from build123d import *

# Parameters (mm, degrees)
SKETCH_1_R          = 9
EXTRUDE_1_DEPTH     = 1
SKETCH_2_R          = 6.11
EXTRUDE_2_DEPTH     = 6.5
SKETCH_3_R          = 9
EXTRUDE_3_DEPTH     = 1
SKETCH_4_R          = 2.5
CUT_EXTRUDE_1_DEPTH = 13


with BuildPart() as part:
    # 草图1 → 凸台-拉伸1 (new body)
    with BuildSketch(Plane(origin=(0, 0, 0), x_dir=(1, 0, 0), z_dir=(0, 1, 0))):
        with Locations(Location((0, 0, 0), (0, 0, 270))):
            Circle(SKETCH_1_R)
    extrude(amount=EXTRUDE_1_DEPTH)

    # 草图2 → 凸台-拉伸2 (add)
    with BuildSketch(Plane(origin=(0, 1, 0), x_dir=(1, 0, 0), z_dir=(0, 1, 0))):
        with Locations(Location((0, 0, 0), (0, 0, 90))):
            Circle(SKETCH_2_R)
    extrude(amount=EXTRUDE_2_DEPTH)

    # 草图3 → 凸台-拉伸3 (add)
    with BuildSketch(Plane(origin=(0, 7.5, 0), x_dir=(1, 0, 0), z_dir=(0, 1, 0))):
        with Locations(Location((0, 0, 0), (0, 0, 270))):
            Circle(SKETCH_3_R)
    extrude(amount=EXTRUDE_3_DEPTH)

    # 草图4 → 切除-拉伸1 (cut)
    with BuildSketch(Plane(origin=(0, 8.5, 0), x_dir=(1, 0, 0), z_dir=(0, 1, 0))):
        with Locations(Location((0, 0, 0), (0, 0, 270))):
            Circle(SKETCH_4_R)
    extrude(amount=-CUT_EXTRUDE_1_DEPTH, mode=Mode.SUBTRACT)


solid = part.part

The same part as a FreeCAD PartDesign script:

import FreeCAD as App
import Part
import Sketcher

V = App.Vector

doc = App.newDocument("Part")
body = doc.addObject("PartDesign::Body", "Body")

sketch1 = body.newObject("Sketcher::SketchObject", "Sketch")
sketch1.AttachmentSupport = (doc.getObject("XZ_Plane"), [""])
sketch1.MapMode = "FlatFace"
sketch1.addGeometry(Part.Circle(V(0, 0, 0), V(0, 0, 1), 9), False)
sketch1.addConstraint([
    Sketcher.Constraint("Coincident", 0, 3, -1, 1),
    Sketcher.Constraint("Diameter", 0, 18.0),
])
pad1 = body.newObject("PartDesign::Pad", "Pad")
pad1.Profile = sketch1
pad1.Length = 1
pad1.Reversed = True

sketch2 = body.newObject("Sketcher::SketchObject", "Sketch001")
sketch2.AttachmentSupport = (doc.getObject("XZ_Plane"), [""])
sketch2.MapMode = "FlatFace"
sketch2.AttachmentOffset = App.Placement(V(0, 0, -1), App.Rotation())
sketch2.addGeometry(Part.Circle(V(0, 0, 0), V(0, 0, 1), 6), False)
sketch2.addConstraint([
    Sketcher.Constraint("Coincident", 0, 3, -1, 1),
    Sketcher.Constraint("Diameter", 0, 12.22),
])
pad2 = body.newObject("PartDesign::Pad", "Pad001")
pad2.Profile = sketch2
pad2.Length = 6.5
pad2.Reversed = True

sketch3 = body.newObject("Sketcher::SketchObject", "Sketch002")
sketch3.AttachmentSupport = (doc.getObject("XZ_Plane"), [""])
sketch3.MapMode = "FlatFace"
sketch3.AttachmentOffset = App.Placement(V(0, 0, -7.5), App.Rotation())
sketch3.addGeometry(Part.Circle(V(0, 0, 0), V(0, 0, 1), 9), False)
sketch3.addConstraint([
    Sketcher.Constraint("Coincident", 0, 3, -1, 1),
    Sketcher.Constraint("Diameter", 0, 18.0),
])
pad3 = body.newObject("PartDesign::Pad", "Pad002")
pad3.Profile = sketch3
pad3.Length = 1
pad3.Reversed = True

sketch4 = body.newObject("Sketcher::SketchObject", "Sketch003")
sketch4.AttachmentSupport = (doc.getObject("XZ_Plane"), [""])
sketch4.MapMode = "FlatFace"
sketch4.AttachmentOffset = App.Placement(V(0, 0, -8.5), App.Rotation())
sketch4.addGeometry(Part.Circle(V(0, 0, 0), V(0, 0, 1), 2.5), False)
sketch4.addConstraint([
    Sketcher.Constraint("Coincident", 0, 3, -1, 1),
    Sketcher.Constraint("Diameter", 0, 5.0),
])
pocket1 = body.newObject("PartDesign::Pocket", "Pocket")
pocket1.Profile = sketch4
pocket1.Length = 13
pocket1.Reversed = True

doc.recompute()
